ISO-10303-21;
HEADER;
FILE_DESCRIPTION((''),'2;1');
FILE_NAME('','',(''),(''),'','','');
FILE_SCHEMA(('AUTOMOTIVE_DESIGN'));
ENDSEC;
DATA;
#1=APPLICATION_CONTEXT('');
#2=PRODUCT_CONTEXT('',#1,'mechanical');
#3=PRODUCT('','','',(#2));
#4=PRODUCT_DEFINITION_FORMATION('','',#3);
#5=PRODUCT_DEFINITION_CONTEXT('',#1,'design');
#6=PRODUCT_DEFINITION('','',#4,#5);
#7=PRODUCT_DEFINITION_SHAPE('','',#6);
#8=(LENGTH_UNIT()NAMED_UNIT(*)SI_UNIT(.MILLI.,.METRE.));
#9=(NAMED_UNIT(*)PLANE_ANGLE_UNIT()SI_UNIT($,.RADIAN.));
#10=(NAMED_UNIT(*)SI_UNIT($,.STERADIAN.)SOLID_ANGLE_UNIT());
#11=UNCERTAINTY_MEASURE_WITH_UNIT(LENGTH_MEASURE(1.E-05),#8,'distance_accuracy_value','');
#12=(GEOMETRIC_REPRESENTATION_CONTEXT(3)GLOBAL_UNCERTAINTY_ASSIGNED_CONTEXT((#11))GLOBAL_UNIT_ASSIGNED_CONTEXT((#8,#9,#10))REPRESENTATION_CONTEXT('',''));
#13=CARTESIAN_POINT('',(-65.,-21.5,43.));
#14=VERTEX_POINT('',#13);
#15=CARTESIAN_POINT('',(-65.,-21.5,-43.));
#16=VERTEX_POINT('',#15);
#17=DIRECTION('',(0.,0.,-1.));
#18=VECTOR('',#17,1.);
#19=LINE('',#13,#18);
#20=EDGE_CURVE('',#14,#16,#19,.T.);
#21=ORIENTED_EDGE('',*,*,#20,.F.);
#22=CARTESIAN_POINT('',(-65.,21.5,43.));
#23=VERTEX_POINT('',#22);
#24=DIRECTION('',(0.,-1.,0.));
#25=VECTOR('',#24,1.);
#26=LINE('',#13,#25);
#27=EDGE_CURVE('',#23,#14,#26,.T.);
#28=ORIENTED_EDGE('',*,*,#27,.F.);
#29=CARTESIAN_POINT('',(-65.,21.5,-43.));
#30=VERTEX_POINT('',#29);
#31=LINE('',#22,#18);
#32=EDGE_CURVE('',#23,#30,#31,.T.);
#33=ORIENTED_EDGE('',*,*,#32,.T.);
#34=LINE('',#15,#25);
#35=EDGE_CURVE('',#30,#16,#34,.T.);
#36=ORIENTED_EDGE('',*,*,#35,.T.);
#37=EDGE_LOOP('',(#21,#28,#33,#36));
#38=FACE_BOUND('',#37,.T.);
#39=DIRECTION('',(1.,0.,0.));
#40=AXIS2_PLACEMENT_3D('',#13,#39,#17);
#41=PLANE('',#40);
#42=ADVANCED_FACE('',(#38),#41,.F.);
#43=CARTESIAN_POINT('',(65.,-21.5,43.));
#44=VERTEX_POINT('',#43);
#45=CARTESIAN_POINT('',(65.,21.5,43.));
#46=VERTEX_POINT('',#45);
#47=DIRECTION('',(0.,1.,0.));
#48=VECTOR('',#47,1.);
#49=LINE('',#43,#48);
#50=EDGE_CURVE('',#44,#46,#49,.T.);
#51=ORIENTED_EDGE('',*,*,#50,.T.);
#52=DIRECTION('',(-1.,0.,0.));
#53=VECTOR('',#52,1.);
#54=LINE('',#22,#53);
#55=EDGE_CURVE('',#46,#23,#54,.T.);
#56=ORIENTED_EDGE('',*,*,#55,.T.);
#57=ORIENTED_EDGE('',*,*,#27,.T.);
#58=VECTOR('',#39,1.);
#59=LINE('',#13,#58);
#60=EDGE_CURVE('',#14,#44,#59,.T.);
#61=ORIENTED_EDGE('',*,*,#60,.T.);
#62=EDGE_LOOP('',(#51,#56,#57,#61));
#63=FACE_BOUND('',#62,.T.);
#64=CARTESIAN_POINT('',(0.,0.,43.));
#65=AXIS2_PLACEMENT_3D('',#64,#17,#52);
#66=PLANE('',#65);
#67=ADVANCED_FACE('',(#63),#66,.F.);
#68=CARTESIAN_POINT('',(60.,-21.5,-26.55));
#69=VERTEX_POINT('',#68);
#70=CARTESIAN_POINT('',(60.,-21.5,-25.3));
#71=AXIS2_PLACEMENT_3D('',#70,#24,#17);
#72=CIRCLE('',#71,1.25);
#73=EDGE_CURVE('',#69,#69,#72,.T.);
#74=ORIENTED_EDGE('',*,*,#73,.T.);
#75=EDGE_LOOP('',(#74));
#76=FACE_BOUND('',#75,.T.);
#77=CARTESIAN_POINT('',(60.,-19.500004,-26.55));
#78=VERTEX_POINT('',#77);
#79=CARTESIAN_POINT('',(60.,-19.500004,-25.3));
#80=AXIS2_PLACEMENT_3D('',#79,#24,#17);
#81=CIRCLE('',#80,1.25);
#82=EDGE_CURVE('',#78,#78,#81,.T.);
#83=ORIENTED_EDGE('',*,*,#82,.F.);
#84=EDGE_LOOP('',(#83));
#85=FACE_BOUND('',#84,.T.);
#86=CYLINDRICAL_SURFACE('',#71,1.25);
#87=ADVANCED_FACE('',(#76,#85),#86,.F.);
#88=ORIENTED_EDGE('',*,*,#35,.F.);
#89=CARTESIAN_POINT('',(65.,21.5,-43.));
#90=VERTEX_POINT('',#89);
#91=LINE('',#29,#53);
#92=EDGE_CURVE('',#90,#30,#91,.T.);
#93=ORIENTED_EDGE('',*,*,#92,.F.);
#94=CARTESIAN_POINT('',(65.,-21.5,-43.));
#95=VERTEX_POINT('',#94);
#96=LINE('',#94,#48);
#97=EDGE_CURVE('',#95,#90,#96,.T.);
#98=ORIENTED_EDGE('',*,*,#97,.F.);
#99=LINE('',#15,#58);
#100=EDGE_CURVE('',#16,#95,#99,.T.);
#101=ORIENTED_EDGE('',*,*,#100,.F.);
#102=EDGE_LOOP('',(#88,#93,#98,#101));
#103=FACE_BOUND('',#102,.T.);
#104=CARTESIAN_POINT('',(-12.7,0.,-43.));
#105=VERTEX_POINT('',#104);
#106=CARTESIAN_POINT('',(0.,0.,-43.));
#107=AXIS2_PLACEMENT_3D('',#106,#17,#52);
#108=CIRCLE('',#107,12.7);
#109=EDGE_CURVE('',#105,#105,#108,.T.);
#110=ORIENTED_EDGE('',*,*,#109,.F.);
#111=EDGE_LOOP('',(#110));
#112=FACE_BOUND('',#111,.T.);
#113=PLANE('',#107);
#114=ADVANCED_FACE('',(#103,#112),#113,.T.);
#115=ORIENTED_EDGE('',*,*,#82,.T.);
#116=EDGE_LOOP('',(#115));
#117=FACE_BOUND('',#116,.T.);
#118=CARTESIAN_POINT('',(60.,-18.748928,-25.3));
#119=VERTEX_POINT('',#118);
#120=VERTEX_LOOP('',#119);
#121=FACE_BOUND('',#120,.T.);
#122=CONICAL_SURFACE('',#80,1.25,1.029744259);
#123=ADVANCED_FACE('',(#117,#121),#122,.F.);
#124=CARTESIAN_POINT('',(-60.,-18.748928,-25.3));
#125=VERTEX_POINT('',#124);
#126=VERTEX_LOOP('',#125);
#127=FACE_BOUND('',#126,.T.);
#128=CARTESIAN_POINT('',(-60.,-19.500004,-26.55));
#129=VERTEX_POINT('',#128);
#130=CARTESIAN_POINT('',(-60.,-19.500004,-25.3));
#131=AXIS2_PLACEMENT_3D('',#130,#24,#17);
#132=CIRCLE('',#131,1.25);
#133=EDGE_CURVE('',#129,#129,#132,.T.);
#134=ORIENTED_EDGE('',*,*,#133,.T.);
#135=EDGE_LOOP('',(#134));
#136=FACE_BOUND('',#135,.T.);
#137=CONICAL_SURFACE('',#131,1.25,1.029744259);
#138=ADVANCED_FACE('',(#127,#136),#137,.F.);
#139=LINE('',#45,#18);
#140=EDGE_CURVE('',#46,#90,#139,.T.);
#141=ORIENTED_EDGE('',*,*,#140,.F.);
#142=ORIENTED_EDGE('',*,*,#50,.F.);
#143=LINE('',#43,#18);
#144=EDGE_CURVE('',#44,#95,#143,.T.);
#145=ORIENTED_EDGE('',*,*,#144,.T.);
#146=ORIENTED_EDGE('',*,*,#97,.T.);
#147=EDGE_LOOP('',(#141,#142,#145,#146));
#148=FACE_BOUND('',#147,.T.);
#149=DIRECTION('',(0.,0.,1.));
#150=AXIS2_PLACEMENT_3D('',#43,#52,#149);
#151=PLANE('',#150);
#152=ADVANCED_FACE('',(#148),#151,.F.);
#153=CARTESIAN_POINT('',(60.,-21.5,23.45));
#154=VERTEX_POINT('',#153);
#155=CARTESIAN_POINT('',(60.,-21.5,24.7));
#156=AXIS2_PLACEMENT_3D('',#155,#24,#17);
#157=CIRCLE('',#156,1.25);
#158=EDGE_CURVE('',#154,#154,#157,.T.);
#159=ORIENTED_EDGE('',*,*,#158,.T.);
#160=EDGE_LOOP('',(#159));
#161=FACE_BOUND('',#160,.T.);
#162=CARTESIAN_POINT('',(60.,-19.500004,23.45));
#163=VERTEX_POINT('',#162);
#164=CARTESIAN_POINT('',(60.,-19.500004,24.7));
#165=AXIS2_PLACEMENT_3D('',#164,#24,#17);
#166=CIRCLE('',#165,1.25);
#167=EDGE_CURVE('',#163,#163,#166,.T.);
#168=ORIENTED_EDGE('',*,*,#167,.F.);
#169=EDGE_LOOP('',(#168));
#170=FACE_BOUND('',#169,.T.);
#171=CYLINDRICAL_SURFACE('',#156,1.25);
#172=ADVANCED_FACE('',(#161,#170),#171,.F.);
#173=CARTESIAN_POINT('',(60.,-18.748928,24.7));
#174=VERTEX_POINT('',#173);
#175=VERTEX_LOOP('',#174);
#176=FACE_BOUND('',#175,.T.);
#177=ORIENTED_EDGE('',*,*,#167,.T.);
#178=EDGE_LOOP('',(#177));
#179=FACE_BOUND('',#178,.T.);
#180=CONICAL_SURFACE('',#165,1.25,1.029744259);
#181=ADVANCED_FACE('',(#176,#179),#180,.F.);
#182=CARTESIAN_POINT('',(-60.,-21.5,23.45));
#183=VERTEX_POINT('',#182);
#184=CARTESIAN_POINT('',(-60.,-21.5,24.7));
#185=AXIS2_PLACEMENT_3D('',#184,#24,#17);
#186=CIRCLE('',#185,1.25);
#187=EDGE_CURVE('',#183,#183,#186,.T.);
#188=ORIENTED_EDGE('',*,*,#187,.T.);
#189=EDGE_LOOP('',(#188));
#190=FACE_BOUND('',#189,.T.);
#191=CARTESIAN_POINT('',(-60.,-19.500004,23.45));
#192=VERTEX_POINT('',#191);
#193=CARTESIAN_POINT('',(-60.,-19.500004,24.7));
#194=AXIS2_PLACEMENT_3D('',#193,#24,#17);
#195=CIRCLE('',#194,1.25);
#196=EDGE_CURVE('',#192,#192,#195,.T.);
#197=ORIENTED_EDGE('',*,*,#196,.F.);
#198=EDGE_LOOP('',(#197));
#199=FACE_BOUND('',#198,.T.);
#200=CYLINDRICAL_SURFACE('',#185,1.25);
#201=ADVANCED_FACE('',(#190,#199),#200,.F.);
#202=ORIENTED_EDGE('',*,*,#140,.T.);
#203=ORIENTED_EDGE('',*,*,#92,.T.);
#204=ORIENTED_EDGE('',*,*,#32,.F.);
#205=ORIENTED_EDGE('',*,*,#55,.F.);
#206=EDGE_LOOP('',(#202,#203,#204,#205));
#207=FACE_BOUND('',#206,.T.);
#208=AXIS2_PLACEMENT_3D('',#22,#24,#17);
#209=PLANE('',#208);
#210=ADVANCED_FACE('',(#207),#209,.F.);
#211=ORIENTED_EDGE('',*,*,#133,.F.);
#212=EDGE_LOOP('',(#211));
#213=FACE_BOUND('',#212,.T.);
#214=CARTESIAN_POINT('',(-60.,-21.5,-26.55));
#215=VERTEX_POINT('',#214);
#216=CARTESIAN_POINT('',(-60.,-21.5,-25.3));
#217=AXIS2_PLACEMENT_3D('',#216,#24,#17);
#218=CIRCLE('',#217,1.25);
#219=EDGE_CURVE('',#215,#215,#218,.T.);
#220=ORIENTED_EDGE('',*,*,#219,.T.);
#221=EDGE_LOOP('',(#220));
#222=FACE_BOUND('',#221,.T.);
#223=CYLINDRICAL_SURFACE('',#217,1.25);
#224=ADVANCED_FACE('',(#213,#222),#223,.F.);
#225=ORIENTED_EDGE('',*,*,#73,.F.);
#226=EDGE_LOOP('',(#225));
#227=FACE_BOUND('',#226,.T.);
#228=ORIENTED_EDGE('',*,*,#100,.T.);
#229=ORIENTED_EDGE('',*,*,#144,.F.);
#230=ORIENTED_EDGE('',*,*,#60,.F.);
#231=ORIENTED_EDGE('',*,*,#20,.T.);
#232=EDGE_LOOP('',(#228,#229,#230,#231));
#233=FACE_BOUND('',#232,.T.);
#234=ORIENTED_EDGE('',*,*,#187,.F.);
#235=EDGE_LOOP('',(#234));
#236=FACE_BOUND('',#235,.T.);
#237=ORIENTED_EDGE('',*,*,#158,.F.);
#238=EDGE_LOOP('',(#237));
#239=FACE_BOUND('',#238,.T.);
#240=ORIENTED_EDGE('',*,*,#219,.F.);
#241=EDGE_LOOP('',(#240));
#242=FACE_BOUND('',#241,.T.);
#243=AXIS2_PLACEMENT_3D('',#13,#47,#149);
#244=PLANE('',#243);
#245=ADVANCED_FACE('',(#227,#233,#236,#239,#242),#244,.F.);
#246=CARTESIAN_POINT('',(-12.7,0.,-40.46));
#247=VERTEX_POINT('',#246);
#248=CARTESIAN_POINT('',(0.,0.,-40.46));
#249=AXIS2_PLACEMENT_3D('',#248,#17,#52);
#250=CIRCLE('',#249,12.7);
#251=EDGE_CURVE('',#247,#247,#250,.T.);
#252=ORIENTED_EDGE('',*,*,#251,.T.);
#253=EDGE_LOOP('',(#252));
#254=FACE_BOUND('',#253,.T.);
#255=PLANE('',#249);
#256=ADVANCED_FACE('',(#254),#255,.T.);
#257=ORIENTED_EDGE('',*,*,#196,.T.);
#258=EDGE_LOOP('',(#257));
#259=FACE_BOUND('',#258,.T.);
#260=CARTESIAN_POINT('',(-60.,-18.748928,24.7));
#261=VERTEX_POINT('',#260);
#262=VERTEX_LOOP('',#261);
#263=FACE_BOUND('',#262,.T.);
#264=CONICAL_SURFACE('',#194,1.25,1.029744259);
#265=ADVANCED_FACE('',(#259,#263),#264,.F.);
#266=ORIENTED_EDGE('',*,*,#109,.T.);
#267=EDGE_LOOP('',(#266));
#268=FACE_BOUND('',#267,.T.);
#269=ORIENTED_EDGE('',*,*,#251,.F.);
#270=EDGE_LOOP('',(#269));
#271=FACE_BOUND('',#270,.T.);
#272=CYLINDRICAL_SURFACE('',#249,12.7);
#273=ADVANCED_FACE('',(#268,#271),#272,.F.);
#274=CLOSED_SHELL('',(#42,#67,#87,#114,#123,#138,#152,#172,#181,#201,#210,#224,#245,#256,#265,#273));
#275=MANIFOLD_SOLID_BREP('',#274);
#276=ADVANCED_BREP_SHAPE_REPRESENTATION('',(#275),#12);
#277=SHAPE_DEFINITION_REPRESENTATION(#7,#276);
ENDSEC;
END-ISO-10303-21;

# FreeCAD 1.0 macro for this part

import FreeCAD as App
import Part
import Sketcher
Q = App.Units.Quantity


def add_polygon(sketch, points):
    """Adds a closed chain of lines whose ends are joined by coincident constraints."""
    first, n = sketch.GeometryCount, len(points)
    for a, b in zip(points, points[1:] + points[:1]):
        sketch.addGeometry(Part.LineSegment(App.Vector(*a, 0), App.Vector(*b, 0)), False)
    for i in range(n):
        sketch.addConstraint(Sketcher.Constraint("Coincident", first + i, 2, first + (i + 1) % n, 1))

doc = App.newDocument("Part")
body = doc.addObject("PartDesign::Body", "Body")

# Sketch on XY plane
sketch1 = body.newObject("Sketcher::SketchObject", "Sketch")
sketch1.AttachmentSupport = (doc.getObject("XY_Plane"), [""])
sketch1.MapMode = "FlatFace"
add_polygon(sketch1, [(-65, 22), (-65, -22), (65, -22), (65, 22)])  # lines 0-3
sketch1.addConstraint([
    Sketcher.Constraint("Vertical", 0),
    Sketcher.Constraint("Horizontal", 1),
    Sketcher.Constraint("Vertical", 2),
    Sketcher.Constraint("Horizontal", 3),
    Sketcher.Constraint("Symmetric", 0, 2, 2, 2, -1, 1),
    Sketcher.Constraint("DistanceX", 1, 1, 1, 2, Q("130 mm")),
    Sketcher.Constraint("DistanceY", 0, 2, 0, 1, Q("43 mm")),
])
pad1 = body.newObject("PartDesign::Pad", "Pad")
pad1.Profile = sketch1
pad1.Length = 86
pad1.Midplane = True

# Sketch on XZ plane
sketch2 = body.newObject("Sketcher::SketchObject", "Sketch001")
sketch2.AttachmentSupport = (doc.getObject("XZ_Plane"), [""])
sketch2.MapMode = "FlatFace"
sketch2.AttachmentOffset = App.Placement(App.Vector(0, 0, 21.5), App.Rotation())
sketch2.addGeometry([
    Part.Circle(App.Vector(-60, 24.7, 0), App.Vector(0, 0, 1), 1.2),
    Part.Circle(App.Vector(60, 24.7, 0), App.Vector(0, 0, 1), 1.2),
    Part.Circle(App.Vector(60, -25.3, 0), App.Vector(0, 0, 1), 1.2),
    Part.Circle(App.Vector(-60, -25.3, 0), App.Vector(0, 0, 1), 1.2),
], False)
sketch2.addConstraint([
    Sketcher.Constraint("Equal", 0, 1),
    Sketcher.Constraint("Equal", 1, 2),
    Sketcher.Constraint("Equal", 2, 3),
    Sketcher.Constraint("Symmetric", 0, 3, 1, 3, -2),
    Sketcher.Constraint("Symmetric", 2, 3, 3, 3, -2),
    Sketcher.Constraint("Vertical", 1, 3, 2, 3),
    Sketcher.Constraint("Diameter", 0, Q("2.5 mm")),
    Sketcher.Constraint("DistanceX", 0, 3, -1, 1, Q("60 mm")),
    Sketcher.Constraint("DistanceY", 2, 3, 1, 3, Q("50 mm")),
    Sketcher.Constraint("DistanceY", -1, 1, 0, 3, Q("24.7 mm")),
])
doc.recompute()
hole = body.newObject("PartDesign::Hole", "Hole")
hole.Profile = sketch2
hole.ThreadType = "None"
hole.Diameter = 2.5
hole.DepthType = "Dimension"
hole.Depth = 1.999996
hole.DrillPoint = "Angled"
hole.DrillPointAngle = 118

# Sketch on XY plane
sketch3 = body.newObject("Sketcher::SketchObject", "Sketch002")
sketch3.AttachmentSupport = (doc.getObject("XY_Plane"), [""])
sketch3.MapMode = "FlatFace"
sketch3.AttachmentOffset = App.Placement(App.Vector(0, 0, -43), App.Rotation())
sketch3.addGeometry(Part.Circle(App.Vector(0, 0, 0), App.Vector(0, 0, 1), 13), False)
sketch3.addConstraint([
    Sketcher.Constraint("Coincident", 0, 3, -1, 1),
    Sketcher.Constraint("Diameter", 0, Q("25.4 mm")),
])
pocket1 = body.newObject("PartDesign::Pocket", "Pocket")
pocket1.Profile = sketch3
pocket1.Length = 2.54
pocket1.Reversed = True

doc.recompute()
